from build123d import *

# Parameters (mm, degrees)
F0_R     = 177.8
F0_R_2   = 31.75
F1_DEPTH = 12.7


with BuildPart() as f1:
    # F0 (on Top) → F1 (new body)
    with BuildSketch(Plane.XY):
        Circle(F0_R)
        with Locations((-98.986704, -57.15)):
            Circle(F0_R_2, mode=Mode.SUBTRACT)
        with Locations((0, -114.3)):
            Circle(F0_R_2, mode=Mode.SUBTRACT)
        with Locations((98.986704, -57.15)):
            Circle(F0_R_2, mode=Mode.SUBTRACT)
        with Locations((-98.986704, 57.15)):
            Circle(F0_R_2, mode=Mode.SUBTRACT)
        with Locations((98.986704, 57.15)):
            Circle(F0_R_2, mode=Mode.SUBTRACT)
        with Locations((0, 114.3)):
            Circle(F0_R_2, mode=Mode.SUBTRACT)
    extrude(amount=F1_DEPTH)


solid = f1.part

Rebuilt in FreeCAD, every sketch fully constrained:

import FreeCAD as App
import Part
import Sketcher

V = App.Vector
Q = App.Units.Quantity

doc = App.newDocument("Part")
body = doc.addObject("PartDesign::Body", "Body")

sketch1 = body.newObject("Sketcher::SketchObject", "Sketch")
sketch1.AttachmentSupport = (doc.getObject("XY_Plane"), [""])
sketch1.MapMode = "FlatFace"
sketch1.addGeometry([
    Part.Circle(V(0, 0, 0), V(0, 0, 1), 178),
    Part.Circle(V(0, -114, 0), V(0, 0, 1), 32),
    Part.Circle(V(-99, -57, 0), V(0, 0, 1), 32),
    Part.Circle(V(99, -57, 0), V(0, 0, 1), 32),
    Part.Circle(V(-99, 57, 0), V(0, 0, 1), 32),
    Part.Circle(V(0, 114, 0), V(0, 0, 1), 32),
    Part.Circle(V(99, 57, 0), V(0, 0, 1), 32),
], False)
sketch1.addConstraint([
    Sketcher.Constraint("Coincident", 0, 3, -1, 1),
    Sketcher.Constraint("Equal", 1, 2),
    Sketcher.Constraint("Equal", 2, 3),
    Sketcher.Constraint("Equal", 3, 4),
    Sketcher.Constraint("Equal", 4, 5),
    Sketcher.Constraint("Equal", 5, 6),
    Sketcher.Constraint("Symmetric", 3, 3, 4, 3, -1, 1),
    Sketcher.Constraint("Symmetric", 1, 3, 5, 3, -1, 1),
    Sketcher.Constraint("Symmetric", 2, 3, 6, 3, -1, 1),
    Sketcher.Constraint("Symmetric", 2, 3, 3, 3, -2),
    Sketcher.Constraint("PointOnObject", 1, 3, -2),
    Sketcher.Constraint("Diameter", 0, Q("14 in")),
    Sketcher.Constraint("Diameter", 1, Q("2.5 in")),
    Sketcher.Constraint("DistanceY", 1, 3, 5, 3, Q("9 in")),
    Sketcher.Constraint("DistanceY", 2, 3, 4, 3, Q("4.5 in")),
    Sketcher.Constraint("DistanceX", 2, 3, 3, 3, Q("197.973408 mm")),
])
pad1 = body.newObject("PartDesign::Pad", "Pad")
pad1.Profile = sketch1
pad1.Length = Q("0.5 in")

doc.recompute()
